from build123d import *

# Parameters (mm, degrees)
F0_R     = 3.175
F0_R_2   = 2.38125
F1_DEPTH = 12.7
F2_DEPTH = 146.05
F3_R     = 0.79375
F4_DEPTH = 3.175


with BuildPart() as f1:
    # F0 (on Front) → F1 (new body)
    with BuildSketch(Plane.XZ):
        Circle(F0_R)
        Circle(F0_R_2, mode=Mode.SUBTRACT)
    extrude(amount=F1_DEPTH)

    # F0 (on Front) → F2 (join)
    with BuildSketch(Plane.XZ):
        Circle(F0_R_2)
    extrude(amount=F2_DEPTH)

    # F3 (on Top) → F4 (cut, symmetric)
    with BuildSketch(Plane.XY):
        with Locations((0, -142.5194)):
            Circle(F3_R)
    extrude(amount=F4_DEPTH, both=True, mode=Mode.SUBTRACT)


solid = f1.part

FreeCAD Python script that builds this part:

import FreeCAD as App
import Part
import Sketcher
Q = App.Units.Quantity

doc = App.newDocument("Part")
body = doc.addObject("PartDesign::Body", "Body")

# Sketch on XZ plane
sketch1 = body.newObject("Sketcher::SketchObject", "Sketch")
sketch1.AttachmentSupport = (doc.getObject("XZ_Plane"), [""])
sketch1.MapMode = "FlatFace"
sketch1.addGeometry([
    Part.Circle(App.Vector(0, 0, 0), App.Vector(0, 0, 1), 3.2),
    Part.Circle(App.Vector(0, 0, 0), App.Vector(0, 0, 1), 2.4),
], False)
sketch1.addConstraint([
    Sketcher.Constraint("Coincident", 0, 3, -1, 1),
    Sketcher.Constraint("Coincident", 1, 3, -1, 1),
    Sketcher.Constraint("Diameter", 0, Q("0.25 in")),
    Sketcher.Constraint("Diameter", 1, Q("0.1875 in")),
])
pad1 = body.newObject("PartDesign::Pad", "Pad")
pad1.Profile = sketch1
pad1.Length = Q("0.5 in")

# Sketch on XZ plane
sketch2 = body.newObject("Sketcher::SketchObject", "Sketch001")
sketch2.AttachmentSupport = (doc.getObject("XZ_Plane"), [""])
sketch2.MapMode = "FlatFace"
sketch2.addGeometry(Part.Circle(App.Vector(0, 0, 0), App.Vector(0, 0, 1), 2.4), False)
sketch2.addConstraint([
    Sketcher.Constraint("Coincident", 0, 3, -1, 1),
    Sketcher.Constraint("Diameter", 0, Q("0.1875 in")),
])
pad2 = body.newObject("PartDesign::Pad", "Pad001")
pad2.Profile = sketch2
pad2.Length = Q("5.75 in")

# Sketch on XY plane
sketch3 = body.newObject("Sketcher::SketchObject", "Sketch002")
sketch3.AttachmentSupport = (doc.getObject("XY_Plane"), [""])
sketch3.MapMode = "FlatFace"
sketch3.addGeometry(Part.Circle(App.Vector(0, -142.5, 0), App.Vector(0, 0, 1), 0.8), False)
sketch3.addConstraint([
    Sketcher.Constraint("PointOnObject", 0, 3, -2),
    Sketcher.Constraint("Diameter", 0, Q("0.0625 in")),
    Sketcher.Constraint("DistanceY", 0, 3, -1, 1, Q("5.611 in")),
])
pocket1 = body.newObject("PartDesign::Pocket", "Pocket")
pocket1.Profile = sketch3
pocket1.Length = Q("0.25 in")
pocket1.Midplane = True

doc.recompute()
